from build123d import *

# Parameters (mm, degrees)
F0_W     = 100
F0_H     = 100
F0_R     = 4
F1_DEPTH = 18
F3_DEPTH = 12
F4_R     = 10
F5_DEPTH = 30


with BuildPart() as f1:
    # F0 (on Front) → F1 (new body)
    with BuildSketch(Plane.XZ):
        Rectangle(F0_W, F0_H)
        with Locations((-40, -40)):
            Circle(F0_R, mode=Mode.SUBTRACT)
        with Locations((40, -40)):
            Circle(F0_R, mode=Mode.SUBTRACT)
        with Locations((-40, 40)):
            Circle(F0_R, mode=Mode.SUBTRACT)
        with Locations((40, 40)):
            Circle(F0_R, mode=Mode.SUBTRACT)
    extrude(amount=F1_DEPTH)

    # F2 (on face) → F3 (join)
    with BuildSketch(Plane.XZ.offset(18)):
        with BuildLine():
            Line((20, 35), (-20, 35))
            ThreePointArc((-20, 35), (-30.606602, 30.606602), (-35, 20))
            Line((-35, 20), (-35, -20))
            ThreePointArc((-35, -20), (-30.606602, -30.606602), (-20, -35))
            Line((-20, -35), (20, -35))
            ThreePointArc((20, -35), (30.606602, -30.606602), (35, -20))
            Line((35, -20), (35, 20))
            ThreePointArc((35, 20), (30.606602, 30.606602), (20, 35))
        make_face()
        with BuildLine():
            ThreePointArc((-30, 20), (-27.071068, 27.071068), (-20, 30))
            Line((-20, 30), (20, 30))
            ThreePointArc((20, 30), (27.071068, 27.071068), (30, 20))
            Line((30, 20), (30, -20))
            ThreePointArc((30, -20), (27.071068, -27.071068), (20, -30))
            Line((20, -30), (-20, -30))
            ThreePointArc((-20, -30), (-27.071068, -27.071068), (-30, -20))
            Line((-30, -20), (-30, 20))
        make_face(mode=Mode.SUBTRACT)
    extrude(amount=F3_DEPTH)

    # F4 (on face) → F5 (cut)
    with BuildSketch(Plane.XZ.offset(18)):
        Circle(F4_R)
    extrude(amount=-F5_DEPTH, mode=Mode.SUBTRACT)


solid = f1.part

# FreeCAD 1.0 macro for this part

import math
import FreeCAD as App
import Part
import Sketcher


def add_polygon(sketch, points):
    """Adds a closed chain of lines whose ends are joined by coincident constraints."""
    first, n = sketch.GeometryCount, len(points)
    for a, b in zip(points, points[1:] + points[:1]):
        sketch.addGeometry(Part.LineSegment(App.Vector(*a, 0), App.Vector(*b, 0)), False)
    for i in range(n):
        sketch.addConstraint(Sketcher.Constraint("Coincident", first + i, 2, first + (i + 1) % n, 1))

doc = App.newDocument("Part")
body = doc.addObject("PartDesign::Body", "Body")

sketch1 = doc.addObject("Sketcher::SketchObject", "Sketch")
body.addObject(sketch1)
sketch1.AttachmentSupport = (doc.XZ_Plane, [""])
sketch1.MapMode = "FlatFace"
add_polygon(sketch1, [(-50, 50), (-50, -50), (50, -50), (50, 50)])
sketch1.addGeometry(Part.Circle(App.Vector(-40, -40, 0), App.Vector(0, 0, 1), 4), False)
sketch1.addGeometry(Part.Circle(App.Vector(40, -40, 0), App.Vector(0, 0, 1), 4), False)
sketch1.addGeometry(Part.Circle(App.Vector(-40, 40, 0), App.Vector(0, 0, 1), 4), False)
sketch1.addGeometry(Part.Circle(App.Vector(40, 40, 0), App.Vector(0, 0, 1), 4), False)
sketch1.addConstraint([
    Sketcher.Constraint("Vertical", 0),
    Sketcher.Constraint("Horizontal", 1),
    Sketcher.Constraint("Vertical", 2),
    Sketcher.Constraint("Horizontal", 3),
    Sketcher.Constraint("Equal", 4, 5),
    Sketcher.Constraint("Equal", 5, 6),
    Sketcher.Constraint("Equal", 6, 7),
    Sketcher.Constraint("Symmetric", 5, 3, 6, 3, -1, 1),
    Sketcher.Constraint("Symmetric", 4, 3, 7, 3, -1, 1),
    Sketcher.Constraint("Symmetric", 0, 2, 2, 2, -1, 1),
    Sketcher.Constraint("Symmetric", 4, 3, 5, 3, -2),
    Sketcher.Constraint("Equal", 3, 0),
    Sketcher.Constraint("Diameter", 4, 8.0),
    Sketcher.Constraint("DistanceX", 1, 1, 1, 2, 100.0),
    Sketcher.Constraint("DistanceX", 4, 3, -1, 1, 40.0),
    Sketcher.Constraint("DistanceY", 4, 3, -1, 1, 40.0),
])
pad1 = doc.addObject("PartDesign::Pad", "Pad")
body.addObject(pad1)
pad1.Profile = sketch1
pad1.Length = 18

sketch2 = doc.addObject("Sketcher::SketchObject", "Sketch001")
body.addObject(sketch2)
sketch2.AttachmentSupport = (doc.XZ_Plane, [""])
sketch2.MapMode = "FlatFace"
sketch2.AttachmentOffset = App.Placement(App.Vector(0, 0, 18), App.Rotation())
sketch2.addGeometry([
    Part.LineSegment(App.Vector(20, 35, 0), App.Vector(-20, 35, 0)),
    Part.ArcOfCircle(Part.Circle(App.Vector(-20, 20, 0), App.Vector(0, 0, 1), 15), math.radians(90), math.radians(180)),
    Part.LineSegment(App.Vector(-35, 20, 0), App.Vector(-35, -20, 0)),
    Part.ArcOfCircle(Part.Circle(App.Vector(-20, -20, 0), App.Vector(0, 0, 1), 15), math.radians(180), math.radians(270)),
    Part.LineSegment(App.Vector(-20, -35, 0), App.Vector(20, -35, 0)),
    Part.ArcOfCircle(Part.Circle(App.Vector(20, -20, 0), App.Vector(0, 0, 1), 15), math.radians(-90), math.radians(0)),
    Part.LineSegment(App.Vector(35, -20, 0), App.Vector(35, 20, 0)),
    Part.ArcOfCircle(Part.Circle(App.Vector(20, 20, 0), App.Vector(0, 0, 1), 15), math.radians(0), math.radians(90)),
    Part.LineSegment(App.Vector(-30, -20, 0), App.Vector(-30, 20, 0)),
    Part.ArcOfCircle(Part.Circle(App.Vector(-20, 20, 0), App.Vector(0, 0, 1), 10), math.radians(90), math.radians(180)),
    Part.LineSegment(App.Vector(-20, 30, 0), App.Vector(20, 30, 0)),
    Part.ArcOfCircle(Part.Circle(App.Vector(20, 20, 0), App.Vector(0, 0, 1), 10), math.radians(0), math.radians(90)),
    Part.LineSegment(App.Vector(30, 20, 0), App.Vector(30, -20, 0)),
    Part.ArcOfCircle(Part.Circle(App.Vector(20, -20, 0), App.Vector(0, 0, 1), 10), math.radians(-90), math.radians(0)),
    Part.LineSegment(App.Vector(20, -30, 0), App.Vector(-20, -30, 0)),
    Part.ArcOfCircle(Part.Circle(App.Vector(-20, -20, 0), App.Vector(0, 0, 1), 10), math.radians(180), math.radians(270)),
], False)
sketch2.addConstraint([
    Sketcher.Constraint("Tangent", 0, 2, 1, 1),
    Sketcher.Constraint("Tangent", 1, 2, 2, 1),
    Sketcher.Constraint("Tangent", 2, 2, 3, 1),
    Sketcher.Constraint("Tangent", 3, 2, 4, 1),
    Sketcher.Constraint("Tangent", 4, 2, 5, 1),
    Sketcher.Constraint("Tangent", 5, 2, 6, 1),
    Sketcher.Constraint("Tangent", 6, 2, 7, 1),
    Sketcher.Constraint("Tangent", 7, 2, 0, 1),
    Sketcher.Constraint("Tangent", 8, 2, 9, 2),
    Sketcher.Constraint("Tangent", 9, 1, 10, 1),
    Sketcher.Constraint("Tangent", 10, 2, 11, 2),
    Sketcher.Constraint("Tangent", 11, 1, 12, 1),
    Sketcher.Constraint("Tangent", 12, 2, 13, 2),
    Sketcher.Constraint("Tangent", 13, 1, 14, 1),
    Sketcher.Constraint("Tangent", 14, 2, 15, 2),
    Sketcher.Constraint("Tangent", 15, 1, 8, 1),
    Sketcher.Constraint("Horizontal", 0),
    Sketcher.Constraint("Vertical", 2),
    Sketcher.Constraint("Horizontal", 4),
    Sketcher.Constraint("Vertical", 6),
    Sketcher.Constraint("Vertical", 8),
    Sketcher.Constraint("Horizontal", 10),
    Sketcher.Constraint("Vertical", 12),
    Sketcher.Constraint("Horizontal", 14),
    Sketcher.Constraint("Coincident", 9, 3, 1, 3),
    Sketcher.Constraint("Coincident", 11, 3, 7, 3),
    Sketcher.Constraint("Coincident", 13, 3, 5, 3),
    Sketcher.Constraint("Equal", 1, 3),
    Sketcher.Constraint("Equal", 3, 5),
    Sketcher.Constraint("Equal", 5, 7),
    Sketcher.Constraint("Equal", 13, 15),
    Sketcher.Constraint("Symmetric", 1, 3, 5, 3, -1, 1),
    Sketcher.Constraint("Equal", 14, 2),
    Sketcher.Constraint("Radius", 1, 14.999999),
    Sketcher.Constraint("Radius", 9, 9.999999),
    Sketcher.Constraint("DistanceX", 0, 2, 0, 1, 40.0),
])
pad2 = doc.addObject("PartDesign::Pad", "Pad001")
body.addObject(pad2)
pad2.Profile = sketch2
pad2.Length = 12

sketch3 = doc.addObject("Sketcher::SketchObject", "Sketch002")
body.addObject(sketch3)
sketch3.AttachmentSupport = (doc.XZ_Plane, [""])
sketch3.MapMode = "FlatFace"
sketch3.AttachmentOffset = App.Placement(App.Vector(0, 0, 18), App.Rotation())
sketch3.addGeometry(Part.Circle(App.Vector(0, 0, 0), App.Vector(0, 0, 1), 10), False)
sketch3.addConstraint([
    Sketcher.Constraint("Coincident", 0, 3, -1, 1),
    Sketcher.Constraint("Diameter", 0, 20.0),
])
pocket1 = doc.addObject("PartDesign::Pocket", "Pocket")
body.addObject(pocket1)
pocket1.Profile = sketch3
pocket1.Length = 30

doc.recompute()
